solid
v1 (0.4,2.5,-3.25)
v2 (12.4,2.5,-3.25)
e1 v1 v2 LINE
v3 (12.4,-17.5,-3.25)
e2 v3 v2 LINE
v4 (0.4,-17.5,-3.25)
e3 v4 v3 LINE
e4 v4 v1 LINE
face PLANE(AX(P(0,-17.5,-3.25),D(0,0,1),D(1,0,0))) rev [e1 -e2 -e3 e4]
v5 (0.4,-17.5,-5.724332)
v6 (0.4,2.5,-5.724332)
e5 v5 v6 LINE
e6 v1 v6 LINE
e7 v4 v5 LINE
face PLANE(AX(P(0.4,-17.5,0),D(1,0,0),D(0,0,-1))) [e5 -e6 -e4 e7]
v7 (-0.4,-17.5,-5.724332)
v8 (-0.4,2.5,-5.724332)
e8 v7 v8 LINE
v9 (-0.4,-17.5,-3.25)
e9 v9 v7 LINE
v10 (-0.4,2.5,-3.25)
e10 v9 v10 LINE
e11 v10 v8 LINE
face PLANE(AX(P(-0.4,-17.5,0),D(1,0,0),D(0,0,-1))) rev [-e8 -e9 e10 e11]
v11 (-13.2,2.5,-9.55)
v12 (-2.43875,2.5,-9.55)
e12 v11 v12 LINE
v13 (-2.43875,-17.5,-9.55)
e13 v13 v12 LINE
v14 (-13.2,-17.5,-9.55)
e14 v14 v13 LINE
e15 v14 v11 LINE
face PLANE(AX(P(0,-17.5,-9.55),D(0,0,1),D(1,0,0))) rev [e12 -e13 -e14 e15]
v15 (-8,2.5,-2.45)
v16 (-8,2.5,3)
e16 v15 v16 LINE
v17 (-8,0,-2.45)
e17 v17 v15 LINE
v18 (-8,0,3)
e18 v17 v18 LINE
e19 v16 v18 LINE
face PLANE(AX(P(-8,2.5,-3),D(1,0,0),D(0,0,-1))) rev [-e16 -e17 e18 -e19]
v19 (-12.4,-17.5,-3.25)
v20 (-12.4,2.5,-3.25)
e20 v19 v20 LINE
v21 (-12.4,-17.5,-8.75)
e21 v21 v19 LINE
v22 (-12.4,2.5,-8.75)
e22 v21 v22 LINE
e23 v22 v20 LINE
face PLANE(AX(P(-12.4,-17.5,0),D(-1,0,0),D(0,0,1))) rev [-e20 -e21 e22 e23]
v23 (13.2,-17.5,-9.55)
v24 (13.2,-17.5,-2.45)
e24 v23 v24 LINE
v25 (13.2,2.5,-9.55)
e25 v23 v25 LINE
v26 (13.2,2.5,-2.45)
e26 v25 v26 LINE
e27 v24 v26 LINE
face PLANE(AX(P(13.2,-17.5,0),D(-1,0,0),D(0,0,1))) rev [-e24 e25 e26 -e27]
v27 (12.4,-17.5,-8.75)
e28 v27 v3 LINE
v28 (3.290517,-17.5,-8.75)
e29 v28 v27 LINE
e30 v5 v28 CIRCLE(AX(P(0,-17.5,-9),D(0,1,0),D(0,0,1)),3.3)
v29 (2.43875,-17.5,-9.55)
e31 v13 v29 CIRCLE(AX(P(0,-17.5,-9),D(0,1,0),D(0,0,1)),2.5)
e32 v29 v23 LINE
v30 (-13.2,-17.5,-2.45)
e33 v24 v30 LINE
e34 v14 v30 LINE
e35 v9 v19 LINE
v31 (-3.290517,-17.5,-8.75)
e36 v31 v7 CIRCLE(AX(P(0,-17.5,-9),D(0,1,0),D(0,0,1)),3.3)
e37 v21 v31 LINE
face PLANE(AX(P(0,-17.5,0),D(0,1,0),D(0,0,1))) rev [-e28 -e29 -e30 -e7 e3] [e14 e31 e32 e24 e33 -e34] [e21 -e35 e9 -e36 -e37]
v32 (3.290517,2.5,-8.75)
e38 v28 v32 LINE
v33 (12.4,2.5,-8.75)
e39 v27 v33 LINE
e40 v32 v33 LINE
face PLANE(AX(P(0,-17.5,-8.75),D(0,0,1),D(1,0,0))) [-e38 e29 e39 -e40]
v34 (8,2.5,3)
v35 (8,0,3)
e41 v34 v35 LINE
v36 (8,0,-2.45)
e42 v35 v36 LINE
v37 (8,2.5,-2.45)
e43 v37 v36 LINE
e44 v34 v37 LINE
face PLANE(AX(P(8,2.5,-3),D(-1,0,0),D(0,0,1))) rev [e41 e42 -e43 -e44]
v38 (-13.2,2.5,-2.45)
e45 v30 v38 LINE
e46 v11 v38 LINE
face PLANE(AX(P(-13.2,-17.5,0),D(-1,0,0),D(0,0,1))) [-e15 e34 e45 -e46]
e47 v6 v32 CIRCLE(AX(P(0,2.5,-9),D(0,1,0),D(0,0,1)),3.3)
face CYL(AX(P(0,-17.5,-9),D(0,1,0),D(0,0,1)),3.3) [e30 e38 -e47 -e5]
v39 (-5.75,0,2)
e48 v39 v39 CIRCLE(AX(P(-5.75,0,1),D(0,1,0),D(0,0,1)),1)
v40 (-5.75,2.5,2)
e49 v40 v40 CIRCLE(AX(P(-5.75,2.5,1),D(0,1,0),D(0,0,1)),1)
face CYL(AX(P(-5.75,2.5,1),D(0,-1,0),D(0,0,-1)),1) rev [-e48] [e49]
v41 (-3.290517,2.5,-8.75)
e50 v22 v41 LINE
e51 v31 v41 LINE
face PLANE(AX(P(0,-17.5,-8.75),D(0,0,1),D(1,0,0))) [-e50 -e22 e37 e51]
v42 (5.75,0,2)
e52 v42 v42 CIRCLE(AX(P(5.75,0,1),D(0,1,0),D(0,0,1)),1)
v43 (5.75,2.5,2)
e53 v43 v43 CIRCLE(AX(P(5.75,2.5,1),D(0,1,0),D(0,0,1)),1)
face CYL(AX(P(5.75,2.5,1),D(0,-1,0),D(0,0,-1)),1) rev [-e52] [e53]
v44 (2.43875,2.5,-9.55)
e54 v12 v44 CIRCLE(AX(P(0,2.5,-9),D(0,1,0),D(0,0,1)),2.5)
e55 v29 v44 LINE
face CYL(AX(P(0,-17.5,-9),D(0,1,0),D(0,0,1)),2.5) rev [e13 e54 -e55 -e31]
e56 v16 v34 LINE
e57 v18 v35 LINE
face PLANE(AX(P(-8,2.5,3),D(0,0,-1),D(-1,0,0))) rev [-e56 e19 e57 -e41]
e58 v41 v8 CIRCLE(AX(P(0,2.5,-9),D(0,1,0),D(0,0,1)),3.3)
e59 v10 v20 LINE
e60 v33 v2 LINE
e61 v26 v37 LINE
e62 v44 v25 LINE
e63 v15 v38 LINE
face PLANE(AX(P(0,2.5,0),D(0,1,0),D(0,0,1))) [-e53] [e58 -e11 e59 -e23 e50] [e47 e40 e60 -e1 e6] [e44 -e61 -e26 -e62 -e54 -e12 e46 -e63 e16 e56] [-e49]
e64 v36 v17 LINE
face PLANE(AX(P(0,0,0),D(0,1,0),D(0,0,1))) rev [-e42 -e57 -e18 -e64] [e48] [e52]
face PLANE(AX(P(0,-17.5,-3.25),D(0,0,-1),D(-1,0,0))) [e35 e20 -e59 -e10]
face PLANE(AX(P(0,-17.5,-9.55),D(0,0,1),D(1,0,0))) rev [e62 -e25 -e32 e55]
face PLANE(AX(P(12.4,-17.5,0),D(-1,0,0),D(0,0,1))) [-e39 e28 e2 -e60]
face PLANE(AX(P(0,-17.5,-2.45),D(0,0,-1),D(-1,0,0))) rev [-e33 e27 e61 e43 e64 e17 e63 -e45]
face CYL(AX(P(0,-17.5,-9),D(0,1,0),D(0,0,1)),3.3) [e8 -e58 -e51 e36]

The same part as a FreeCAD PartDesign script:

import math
import FreeCAD as App
import Part
import Sketcher


def add_polygon(sketch, points):
    """Adds a closed chain of lines whose ends are joined by coincident constraints."""
    first, n = sketch.GeometryCount, len(points)
    for a, b in zip(points, points[1:] + points[:1]):
        sketch.addGeometry(Part.LineSegment(App.Vector(*a, 0), App.Vector(*b, 0)), False)
    for i in range(n):
        sketch.addConstraint(Sketcher.Constraint("Coincident", first + i, 2, first + (i + 1) % n, 1))

doc = App.newDocument("Part")
body = doc.addObject("PartDesign::Body", "Body")

# Sketch on XZ plane
sketch1 = body.newObject("Sketcher::SketchObject", "Sketch")
sketch1.AttachmentSupport = (doc.getObject("XZ_Plane"), [""])
sketch1.MapMode = "FlatFace"
add_polygon(sketch1, [(-8, -3), (-8, 3), (8, 3), (8, -3)])  # lines 0-3
sketch1.addGeometry(Part.Circle(App.Vector(-5.75, 1, 0), App.Vector(0, 0, 1), 1), False)  # 4
sketch1.addGeometry(Part.Circle(App.Vector(5.75, 1, 0), App.Vector(0, 0, 1), 1), False)  # 5
sketch1.addConstraint([
    Sketcher.Constraint("Vertical", 0),
    Sketcher.Constraint("Horizontal", 1),
    Sketcher.Constraint("Vertical", 2),
    Sketcher.Constraint("Horizontal", 3),
    Sketcher.Constraint("Equal", 4, 5),
    Sketcher.Constraint("Symmetric", 0, 2, 2, 2, -1, 1),
    Sketcher.Constraint("Symmetric", 4, 3, 5, 3, -2),
    Sketcher.Constraint("Diameter", 4, 2.0),
    Sketcher.Constraint("DistanceX", 1, 1, 1, 2, 16.0),
    Sketcher.Constraint("DistanceY", 0, 1, 0, 2, 6.0),
    Sketcher.Constraint("DistanceY", -1, 1, 4, 3, 1.0),
    Sketcher.Constraint("DistanceX", 4, 3, 5, 3, 11.5),
])
pad1 = body.newObject("PartDesign::Pad", "Pad")
pad1.Profile = sketch1
pad1.Length = 2.5
pad1.Reversed = True

# Sketch on XZ plane
sketch2 = body.newObject("Sketcher::SketchObject", "Sketch001")
sketch2.AttachmentSupport = (doc.getObject("XZ_Plane"), [""])
sketch2.MapMode = "FlatFace"
sketch2.AttachmentOffset = App.Placement(App.Vector(0, 0, -2.5), App.Rotation())
sketch2.addGeometry([
    Part.LineSegment(App.Vector(-13.2, -2.45, 0), App.Vector(13.2, -2.45, 0)),  # 0
    Part.LineSegment(App.Vector(13.2, -2.45, 0), App.Vector(13.2, -9.55, 0)),  # 1
    Part.LineSegment(App.Vector(13.2, -9.55, 0), App.Vector(2.43875, -9.55, 0)),  # 2
    Part.ArcOfCircle(Part.Circle(App.Vector(0, -9, 0), App.Vector(0, 0, 1), 2.5), math.radians(-12.709033), math.radians(192.709033)),  # 3
    Part.LineSegment(App.Vector(-2.43875, -9.55, 0), App.Vector(-13.2, -9.55, 0)),  # 4
    Part.LineSegment(App.Vector(-13.2, -9.55, 0), App.Vector(-13.2, -2.45, 0)),  # 5
    Part.LineSegment(App.Vector(3.290517, -8.75, 0), App.Vector(12.4, -8.75, 0)),  # 6
    Part.LineSegment(App.Vector(12.4, -8.75, 0), App.Vector(12.4, -3.25, 0)),  # 7
    Part.LineSegment(App.Vector(12.4, -3.25, 0), App.Vector(0.4, -3.25, 0)),  # 8
    Part.LineSegment(App.Vector(0.4, -3.25, 0), App.Vector(0.4, -5.724332, 0)),  # 9
    Part.ArcOfCircle(Part.Circle(App.Vector(0, -9, 0), App.Vector(0, 0, 1), 3.3), math.radians(4.344752), math.radians(83.037937)),  # 10
    Part.LineSegment(App.Vector(-0.4, -3.25, 0), App.Vector(-12.4, -3.25, 0)),  # 11
    Part.LineSegment(App.Vector(-12.4, -3.25, 0), App.Vector(-12.4, -8.75, 0)),  # 12
    Part.LineSegment(App.Vector(-12.4, -8.75, 0), App.Vector(-3.290517, -8.75, 0)),  # 13
    Part.ArcOfCircle(Part.Circle(App.Vector(0, -9, 0), App.Vector(0, 0, 1), 3.3), math.radians(96.962063), math.radians(175.655248)),  # 14
    Part.LineSegment(App.Vector(-0.4, -5.724332, 0), App.Vector(-0.4, -3.25, 0)),  # 15
], False)
sketch2.addConstraint([
    Sketcher.Constraint("Coincident", 0, 2, 1, 1),
    Sketcher.Constraint("Coincident", 1, 2, 2, 1),
    Sketcher.Constraint("Coincident", 2, 2, 3, 1),
    Sketcher.Constraint("Coincident", 3, 2, 4, 1),
    Sketcher.Constraint("Coincident", 4, 2, 5, 1),
    Sketcher.Constraint("Coincident", 5, 2, 0, 1),
    Sketcher.Constraint("Coincident", 6, 2, 7, 1),
    Sketcher.Constraint("Coincident", 7, 2, 8, 1),
    Sketcher.Constraint("Coincident", 8, 2, 9, 1),
    Sketcher.Constraint("Coincident", 9, 2, 10, 2),
    Sketcher.Constraint("Coincident", 10, 1, 6, 1),
    Sketcher.Constraint("Coincident", 11, 2, 12, 1),
    Sketcher.Constraint("Coincident", 12, 2, 13, 1),
    Sketcher.Constraint("Coincident", 13, 2, 14, 2),
    Sketcher.Constraint("Coincident", 14, 1, 15, 1),
    Sketcher.Constraint("Coincident", 15, 2, 11, 1),
    Sketcher.Constraint("Horizontal", 0),
    Sketcher.Constraint("Vertical", 1),
    Sketcher.Constraint("Horizontal", 2),
    Sketcher.Constraint("Horizontal", 4),
    Sketcher.Constraint("Vertical", 5),
    Sketcher.Constraint("Horizontal", 6),
    Sketcher.Constraint("Vertical", 7),
    Sketcher.Constraint("Horizontal", 8),
    Sketcher.Constraint("Vertical", 9),
    Sketcher.Constraint("Horizontal", 11),
    Sketcher.Constraint("Vertical", 12),
    Sketcher.Constraint("Horizontal", 13),
    Sketcher.Constraint("Vertical", 15),
    Sketcher.Constraint("Coincident", 10, 3, 3, 3),
    Sketcher.Constraint("Coincident", 14, 3, 3, 3),
    Sketcher.Constraint("Equal", 10, 14),
    Sketcher.Constraint("Symmetric", 2, 2, 3, 2, -2),
    Sketcher.Constraint("Symmetric", 7, 2, 11, 2, -2),
    Sketcher.Constraint("Horizontal", 10, 1, 12, 2),
    Sketcher.Constraint("Horizontal", 9, 2, 14, 1),
    Sketcher.Constraint("Equal", 2, 4),
    Sketcher.Constraint("Radius", 3, 2.5),
    Sketcher.Constraint("Radius", 10, 3.3),
    Sketcher.Constraint("DistanceX", 8, 2, 8, 1, 12.0),
    Sketcher.Constraint("DistanceX", 0, 1, 0, 2, 26.4),
    Sketcher.Constraint("DistanceY", 1, 2, 1, 1, 7.1),
    Sketcher.Constraint("DistanceY", 7, 1, 7, 2, 5.5),
    Sketcher.Constraint("DistanceY", 3, 3, -1, 1, 9.0),
    Sketcher.Constraint("DistanceX", -1, 1, 6, 2, 12.4),
    Sketcher.Constraint("DistanceY", 1, 2, 6, 2, 0.8),
    Sketcher.Constraint("DistanceY", 0, 2, -1, 1, 2.45),
])
pad2 = body.newObject("PartDesign::Pad", "Pad001")
pad2.Profile = sketch2
pad2.Length = 20

doc.recompute()
